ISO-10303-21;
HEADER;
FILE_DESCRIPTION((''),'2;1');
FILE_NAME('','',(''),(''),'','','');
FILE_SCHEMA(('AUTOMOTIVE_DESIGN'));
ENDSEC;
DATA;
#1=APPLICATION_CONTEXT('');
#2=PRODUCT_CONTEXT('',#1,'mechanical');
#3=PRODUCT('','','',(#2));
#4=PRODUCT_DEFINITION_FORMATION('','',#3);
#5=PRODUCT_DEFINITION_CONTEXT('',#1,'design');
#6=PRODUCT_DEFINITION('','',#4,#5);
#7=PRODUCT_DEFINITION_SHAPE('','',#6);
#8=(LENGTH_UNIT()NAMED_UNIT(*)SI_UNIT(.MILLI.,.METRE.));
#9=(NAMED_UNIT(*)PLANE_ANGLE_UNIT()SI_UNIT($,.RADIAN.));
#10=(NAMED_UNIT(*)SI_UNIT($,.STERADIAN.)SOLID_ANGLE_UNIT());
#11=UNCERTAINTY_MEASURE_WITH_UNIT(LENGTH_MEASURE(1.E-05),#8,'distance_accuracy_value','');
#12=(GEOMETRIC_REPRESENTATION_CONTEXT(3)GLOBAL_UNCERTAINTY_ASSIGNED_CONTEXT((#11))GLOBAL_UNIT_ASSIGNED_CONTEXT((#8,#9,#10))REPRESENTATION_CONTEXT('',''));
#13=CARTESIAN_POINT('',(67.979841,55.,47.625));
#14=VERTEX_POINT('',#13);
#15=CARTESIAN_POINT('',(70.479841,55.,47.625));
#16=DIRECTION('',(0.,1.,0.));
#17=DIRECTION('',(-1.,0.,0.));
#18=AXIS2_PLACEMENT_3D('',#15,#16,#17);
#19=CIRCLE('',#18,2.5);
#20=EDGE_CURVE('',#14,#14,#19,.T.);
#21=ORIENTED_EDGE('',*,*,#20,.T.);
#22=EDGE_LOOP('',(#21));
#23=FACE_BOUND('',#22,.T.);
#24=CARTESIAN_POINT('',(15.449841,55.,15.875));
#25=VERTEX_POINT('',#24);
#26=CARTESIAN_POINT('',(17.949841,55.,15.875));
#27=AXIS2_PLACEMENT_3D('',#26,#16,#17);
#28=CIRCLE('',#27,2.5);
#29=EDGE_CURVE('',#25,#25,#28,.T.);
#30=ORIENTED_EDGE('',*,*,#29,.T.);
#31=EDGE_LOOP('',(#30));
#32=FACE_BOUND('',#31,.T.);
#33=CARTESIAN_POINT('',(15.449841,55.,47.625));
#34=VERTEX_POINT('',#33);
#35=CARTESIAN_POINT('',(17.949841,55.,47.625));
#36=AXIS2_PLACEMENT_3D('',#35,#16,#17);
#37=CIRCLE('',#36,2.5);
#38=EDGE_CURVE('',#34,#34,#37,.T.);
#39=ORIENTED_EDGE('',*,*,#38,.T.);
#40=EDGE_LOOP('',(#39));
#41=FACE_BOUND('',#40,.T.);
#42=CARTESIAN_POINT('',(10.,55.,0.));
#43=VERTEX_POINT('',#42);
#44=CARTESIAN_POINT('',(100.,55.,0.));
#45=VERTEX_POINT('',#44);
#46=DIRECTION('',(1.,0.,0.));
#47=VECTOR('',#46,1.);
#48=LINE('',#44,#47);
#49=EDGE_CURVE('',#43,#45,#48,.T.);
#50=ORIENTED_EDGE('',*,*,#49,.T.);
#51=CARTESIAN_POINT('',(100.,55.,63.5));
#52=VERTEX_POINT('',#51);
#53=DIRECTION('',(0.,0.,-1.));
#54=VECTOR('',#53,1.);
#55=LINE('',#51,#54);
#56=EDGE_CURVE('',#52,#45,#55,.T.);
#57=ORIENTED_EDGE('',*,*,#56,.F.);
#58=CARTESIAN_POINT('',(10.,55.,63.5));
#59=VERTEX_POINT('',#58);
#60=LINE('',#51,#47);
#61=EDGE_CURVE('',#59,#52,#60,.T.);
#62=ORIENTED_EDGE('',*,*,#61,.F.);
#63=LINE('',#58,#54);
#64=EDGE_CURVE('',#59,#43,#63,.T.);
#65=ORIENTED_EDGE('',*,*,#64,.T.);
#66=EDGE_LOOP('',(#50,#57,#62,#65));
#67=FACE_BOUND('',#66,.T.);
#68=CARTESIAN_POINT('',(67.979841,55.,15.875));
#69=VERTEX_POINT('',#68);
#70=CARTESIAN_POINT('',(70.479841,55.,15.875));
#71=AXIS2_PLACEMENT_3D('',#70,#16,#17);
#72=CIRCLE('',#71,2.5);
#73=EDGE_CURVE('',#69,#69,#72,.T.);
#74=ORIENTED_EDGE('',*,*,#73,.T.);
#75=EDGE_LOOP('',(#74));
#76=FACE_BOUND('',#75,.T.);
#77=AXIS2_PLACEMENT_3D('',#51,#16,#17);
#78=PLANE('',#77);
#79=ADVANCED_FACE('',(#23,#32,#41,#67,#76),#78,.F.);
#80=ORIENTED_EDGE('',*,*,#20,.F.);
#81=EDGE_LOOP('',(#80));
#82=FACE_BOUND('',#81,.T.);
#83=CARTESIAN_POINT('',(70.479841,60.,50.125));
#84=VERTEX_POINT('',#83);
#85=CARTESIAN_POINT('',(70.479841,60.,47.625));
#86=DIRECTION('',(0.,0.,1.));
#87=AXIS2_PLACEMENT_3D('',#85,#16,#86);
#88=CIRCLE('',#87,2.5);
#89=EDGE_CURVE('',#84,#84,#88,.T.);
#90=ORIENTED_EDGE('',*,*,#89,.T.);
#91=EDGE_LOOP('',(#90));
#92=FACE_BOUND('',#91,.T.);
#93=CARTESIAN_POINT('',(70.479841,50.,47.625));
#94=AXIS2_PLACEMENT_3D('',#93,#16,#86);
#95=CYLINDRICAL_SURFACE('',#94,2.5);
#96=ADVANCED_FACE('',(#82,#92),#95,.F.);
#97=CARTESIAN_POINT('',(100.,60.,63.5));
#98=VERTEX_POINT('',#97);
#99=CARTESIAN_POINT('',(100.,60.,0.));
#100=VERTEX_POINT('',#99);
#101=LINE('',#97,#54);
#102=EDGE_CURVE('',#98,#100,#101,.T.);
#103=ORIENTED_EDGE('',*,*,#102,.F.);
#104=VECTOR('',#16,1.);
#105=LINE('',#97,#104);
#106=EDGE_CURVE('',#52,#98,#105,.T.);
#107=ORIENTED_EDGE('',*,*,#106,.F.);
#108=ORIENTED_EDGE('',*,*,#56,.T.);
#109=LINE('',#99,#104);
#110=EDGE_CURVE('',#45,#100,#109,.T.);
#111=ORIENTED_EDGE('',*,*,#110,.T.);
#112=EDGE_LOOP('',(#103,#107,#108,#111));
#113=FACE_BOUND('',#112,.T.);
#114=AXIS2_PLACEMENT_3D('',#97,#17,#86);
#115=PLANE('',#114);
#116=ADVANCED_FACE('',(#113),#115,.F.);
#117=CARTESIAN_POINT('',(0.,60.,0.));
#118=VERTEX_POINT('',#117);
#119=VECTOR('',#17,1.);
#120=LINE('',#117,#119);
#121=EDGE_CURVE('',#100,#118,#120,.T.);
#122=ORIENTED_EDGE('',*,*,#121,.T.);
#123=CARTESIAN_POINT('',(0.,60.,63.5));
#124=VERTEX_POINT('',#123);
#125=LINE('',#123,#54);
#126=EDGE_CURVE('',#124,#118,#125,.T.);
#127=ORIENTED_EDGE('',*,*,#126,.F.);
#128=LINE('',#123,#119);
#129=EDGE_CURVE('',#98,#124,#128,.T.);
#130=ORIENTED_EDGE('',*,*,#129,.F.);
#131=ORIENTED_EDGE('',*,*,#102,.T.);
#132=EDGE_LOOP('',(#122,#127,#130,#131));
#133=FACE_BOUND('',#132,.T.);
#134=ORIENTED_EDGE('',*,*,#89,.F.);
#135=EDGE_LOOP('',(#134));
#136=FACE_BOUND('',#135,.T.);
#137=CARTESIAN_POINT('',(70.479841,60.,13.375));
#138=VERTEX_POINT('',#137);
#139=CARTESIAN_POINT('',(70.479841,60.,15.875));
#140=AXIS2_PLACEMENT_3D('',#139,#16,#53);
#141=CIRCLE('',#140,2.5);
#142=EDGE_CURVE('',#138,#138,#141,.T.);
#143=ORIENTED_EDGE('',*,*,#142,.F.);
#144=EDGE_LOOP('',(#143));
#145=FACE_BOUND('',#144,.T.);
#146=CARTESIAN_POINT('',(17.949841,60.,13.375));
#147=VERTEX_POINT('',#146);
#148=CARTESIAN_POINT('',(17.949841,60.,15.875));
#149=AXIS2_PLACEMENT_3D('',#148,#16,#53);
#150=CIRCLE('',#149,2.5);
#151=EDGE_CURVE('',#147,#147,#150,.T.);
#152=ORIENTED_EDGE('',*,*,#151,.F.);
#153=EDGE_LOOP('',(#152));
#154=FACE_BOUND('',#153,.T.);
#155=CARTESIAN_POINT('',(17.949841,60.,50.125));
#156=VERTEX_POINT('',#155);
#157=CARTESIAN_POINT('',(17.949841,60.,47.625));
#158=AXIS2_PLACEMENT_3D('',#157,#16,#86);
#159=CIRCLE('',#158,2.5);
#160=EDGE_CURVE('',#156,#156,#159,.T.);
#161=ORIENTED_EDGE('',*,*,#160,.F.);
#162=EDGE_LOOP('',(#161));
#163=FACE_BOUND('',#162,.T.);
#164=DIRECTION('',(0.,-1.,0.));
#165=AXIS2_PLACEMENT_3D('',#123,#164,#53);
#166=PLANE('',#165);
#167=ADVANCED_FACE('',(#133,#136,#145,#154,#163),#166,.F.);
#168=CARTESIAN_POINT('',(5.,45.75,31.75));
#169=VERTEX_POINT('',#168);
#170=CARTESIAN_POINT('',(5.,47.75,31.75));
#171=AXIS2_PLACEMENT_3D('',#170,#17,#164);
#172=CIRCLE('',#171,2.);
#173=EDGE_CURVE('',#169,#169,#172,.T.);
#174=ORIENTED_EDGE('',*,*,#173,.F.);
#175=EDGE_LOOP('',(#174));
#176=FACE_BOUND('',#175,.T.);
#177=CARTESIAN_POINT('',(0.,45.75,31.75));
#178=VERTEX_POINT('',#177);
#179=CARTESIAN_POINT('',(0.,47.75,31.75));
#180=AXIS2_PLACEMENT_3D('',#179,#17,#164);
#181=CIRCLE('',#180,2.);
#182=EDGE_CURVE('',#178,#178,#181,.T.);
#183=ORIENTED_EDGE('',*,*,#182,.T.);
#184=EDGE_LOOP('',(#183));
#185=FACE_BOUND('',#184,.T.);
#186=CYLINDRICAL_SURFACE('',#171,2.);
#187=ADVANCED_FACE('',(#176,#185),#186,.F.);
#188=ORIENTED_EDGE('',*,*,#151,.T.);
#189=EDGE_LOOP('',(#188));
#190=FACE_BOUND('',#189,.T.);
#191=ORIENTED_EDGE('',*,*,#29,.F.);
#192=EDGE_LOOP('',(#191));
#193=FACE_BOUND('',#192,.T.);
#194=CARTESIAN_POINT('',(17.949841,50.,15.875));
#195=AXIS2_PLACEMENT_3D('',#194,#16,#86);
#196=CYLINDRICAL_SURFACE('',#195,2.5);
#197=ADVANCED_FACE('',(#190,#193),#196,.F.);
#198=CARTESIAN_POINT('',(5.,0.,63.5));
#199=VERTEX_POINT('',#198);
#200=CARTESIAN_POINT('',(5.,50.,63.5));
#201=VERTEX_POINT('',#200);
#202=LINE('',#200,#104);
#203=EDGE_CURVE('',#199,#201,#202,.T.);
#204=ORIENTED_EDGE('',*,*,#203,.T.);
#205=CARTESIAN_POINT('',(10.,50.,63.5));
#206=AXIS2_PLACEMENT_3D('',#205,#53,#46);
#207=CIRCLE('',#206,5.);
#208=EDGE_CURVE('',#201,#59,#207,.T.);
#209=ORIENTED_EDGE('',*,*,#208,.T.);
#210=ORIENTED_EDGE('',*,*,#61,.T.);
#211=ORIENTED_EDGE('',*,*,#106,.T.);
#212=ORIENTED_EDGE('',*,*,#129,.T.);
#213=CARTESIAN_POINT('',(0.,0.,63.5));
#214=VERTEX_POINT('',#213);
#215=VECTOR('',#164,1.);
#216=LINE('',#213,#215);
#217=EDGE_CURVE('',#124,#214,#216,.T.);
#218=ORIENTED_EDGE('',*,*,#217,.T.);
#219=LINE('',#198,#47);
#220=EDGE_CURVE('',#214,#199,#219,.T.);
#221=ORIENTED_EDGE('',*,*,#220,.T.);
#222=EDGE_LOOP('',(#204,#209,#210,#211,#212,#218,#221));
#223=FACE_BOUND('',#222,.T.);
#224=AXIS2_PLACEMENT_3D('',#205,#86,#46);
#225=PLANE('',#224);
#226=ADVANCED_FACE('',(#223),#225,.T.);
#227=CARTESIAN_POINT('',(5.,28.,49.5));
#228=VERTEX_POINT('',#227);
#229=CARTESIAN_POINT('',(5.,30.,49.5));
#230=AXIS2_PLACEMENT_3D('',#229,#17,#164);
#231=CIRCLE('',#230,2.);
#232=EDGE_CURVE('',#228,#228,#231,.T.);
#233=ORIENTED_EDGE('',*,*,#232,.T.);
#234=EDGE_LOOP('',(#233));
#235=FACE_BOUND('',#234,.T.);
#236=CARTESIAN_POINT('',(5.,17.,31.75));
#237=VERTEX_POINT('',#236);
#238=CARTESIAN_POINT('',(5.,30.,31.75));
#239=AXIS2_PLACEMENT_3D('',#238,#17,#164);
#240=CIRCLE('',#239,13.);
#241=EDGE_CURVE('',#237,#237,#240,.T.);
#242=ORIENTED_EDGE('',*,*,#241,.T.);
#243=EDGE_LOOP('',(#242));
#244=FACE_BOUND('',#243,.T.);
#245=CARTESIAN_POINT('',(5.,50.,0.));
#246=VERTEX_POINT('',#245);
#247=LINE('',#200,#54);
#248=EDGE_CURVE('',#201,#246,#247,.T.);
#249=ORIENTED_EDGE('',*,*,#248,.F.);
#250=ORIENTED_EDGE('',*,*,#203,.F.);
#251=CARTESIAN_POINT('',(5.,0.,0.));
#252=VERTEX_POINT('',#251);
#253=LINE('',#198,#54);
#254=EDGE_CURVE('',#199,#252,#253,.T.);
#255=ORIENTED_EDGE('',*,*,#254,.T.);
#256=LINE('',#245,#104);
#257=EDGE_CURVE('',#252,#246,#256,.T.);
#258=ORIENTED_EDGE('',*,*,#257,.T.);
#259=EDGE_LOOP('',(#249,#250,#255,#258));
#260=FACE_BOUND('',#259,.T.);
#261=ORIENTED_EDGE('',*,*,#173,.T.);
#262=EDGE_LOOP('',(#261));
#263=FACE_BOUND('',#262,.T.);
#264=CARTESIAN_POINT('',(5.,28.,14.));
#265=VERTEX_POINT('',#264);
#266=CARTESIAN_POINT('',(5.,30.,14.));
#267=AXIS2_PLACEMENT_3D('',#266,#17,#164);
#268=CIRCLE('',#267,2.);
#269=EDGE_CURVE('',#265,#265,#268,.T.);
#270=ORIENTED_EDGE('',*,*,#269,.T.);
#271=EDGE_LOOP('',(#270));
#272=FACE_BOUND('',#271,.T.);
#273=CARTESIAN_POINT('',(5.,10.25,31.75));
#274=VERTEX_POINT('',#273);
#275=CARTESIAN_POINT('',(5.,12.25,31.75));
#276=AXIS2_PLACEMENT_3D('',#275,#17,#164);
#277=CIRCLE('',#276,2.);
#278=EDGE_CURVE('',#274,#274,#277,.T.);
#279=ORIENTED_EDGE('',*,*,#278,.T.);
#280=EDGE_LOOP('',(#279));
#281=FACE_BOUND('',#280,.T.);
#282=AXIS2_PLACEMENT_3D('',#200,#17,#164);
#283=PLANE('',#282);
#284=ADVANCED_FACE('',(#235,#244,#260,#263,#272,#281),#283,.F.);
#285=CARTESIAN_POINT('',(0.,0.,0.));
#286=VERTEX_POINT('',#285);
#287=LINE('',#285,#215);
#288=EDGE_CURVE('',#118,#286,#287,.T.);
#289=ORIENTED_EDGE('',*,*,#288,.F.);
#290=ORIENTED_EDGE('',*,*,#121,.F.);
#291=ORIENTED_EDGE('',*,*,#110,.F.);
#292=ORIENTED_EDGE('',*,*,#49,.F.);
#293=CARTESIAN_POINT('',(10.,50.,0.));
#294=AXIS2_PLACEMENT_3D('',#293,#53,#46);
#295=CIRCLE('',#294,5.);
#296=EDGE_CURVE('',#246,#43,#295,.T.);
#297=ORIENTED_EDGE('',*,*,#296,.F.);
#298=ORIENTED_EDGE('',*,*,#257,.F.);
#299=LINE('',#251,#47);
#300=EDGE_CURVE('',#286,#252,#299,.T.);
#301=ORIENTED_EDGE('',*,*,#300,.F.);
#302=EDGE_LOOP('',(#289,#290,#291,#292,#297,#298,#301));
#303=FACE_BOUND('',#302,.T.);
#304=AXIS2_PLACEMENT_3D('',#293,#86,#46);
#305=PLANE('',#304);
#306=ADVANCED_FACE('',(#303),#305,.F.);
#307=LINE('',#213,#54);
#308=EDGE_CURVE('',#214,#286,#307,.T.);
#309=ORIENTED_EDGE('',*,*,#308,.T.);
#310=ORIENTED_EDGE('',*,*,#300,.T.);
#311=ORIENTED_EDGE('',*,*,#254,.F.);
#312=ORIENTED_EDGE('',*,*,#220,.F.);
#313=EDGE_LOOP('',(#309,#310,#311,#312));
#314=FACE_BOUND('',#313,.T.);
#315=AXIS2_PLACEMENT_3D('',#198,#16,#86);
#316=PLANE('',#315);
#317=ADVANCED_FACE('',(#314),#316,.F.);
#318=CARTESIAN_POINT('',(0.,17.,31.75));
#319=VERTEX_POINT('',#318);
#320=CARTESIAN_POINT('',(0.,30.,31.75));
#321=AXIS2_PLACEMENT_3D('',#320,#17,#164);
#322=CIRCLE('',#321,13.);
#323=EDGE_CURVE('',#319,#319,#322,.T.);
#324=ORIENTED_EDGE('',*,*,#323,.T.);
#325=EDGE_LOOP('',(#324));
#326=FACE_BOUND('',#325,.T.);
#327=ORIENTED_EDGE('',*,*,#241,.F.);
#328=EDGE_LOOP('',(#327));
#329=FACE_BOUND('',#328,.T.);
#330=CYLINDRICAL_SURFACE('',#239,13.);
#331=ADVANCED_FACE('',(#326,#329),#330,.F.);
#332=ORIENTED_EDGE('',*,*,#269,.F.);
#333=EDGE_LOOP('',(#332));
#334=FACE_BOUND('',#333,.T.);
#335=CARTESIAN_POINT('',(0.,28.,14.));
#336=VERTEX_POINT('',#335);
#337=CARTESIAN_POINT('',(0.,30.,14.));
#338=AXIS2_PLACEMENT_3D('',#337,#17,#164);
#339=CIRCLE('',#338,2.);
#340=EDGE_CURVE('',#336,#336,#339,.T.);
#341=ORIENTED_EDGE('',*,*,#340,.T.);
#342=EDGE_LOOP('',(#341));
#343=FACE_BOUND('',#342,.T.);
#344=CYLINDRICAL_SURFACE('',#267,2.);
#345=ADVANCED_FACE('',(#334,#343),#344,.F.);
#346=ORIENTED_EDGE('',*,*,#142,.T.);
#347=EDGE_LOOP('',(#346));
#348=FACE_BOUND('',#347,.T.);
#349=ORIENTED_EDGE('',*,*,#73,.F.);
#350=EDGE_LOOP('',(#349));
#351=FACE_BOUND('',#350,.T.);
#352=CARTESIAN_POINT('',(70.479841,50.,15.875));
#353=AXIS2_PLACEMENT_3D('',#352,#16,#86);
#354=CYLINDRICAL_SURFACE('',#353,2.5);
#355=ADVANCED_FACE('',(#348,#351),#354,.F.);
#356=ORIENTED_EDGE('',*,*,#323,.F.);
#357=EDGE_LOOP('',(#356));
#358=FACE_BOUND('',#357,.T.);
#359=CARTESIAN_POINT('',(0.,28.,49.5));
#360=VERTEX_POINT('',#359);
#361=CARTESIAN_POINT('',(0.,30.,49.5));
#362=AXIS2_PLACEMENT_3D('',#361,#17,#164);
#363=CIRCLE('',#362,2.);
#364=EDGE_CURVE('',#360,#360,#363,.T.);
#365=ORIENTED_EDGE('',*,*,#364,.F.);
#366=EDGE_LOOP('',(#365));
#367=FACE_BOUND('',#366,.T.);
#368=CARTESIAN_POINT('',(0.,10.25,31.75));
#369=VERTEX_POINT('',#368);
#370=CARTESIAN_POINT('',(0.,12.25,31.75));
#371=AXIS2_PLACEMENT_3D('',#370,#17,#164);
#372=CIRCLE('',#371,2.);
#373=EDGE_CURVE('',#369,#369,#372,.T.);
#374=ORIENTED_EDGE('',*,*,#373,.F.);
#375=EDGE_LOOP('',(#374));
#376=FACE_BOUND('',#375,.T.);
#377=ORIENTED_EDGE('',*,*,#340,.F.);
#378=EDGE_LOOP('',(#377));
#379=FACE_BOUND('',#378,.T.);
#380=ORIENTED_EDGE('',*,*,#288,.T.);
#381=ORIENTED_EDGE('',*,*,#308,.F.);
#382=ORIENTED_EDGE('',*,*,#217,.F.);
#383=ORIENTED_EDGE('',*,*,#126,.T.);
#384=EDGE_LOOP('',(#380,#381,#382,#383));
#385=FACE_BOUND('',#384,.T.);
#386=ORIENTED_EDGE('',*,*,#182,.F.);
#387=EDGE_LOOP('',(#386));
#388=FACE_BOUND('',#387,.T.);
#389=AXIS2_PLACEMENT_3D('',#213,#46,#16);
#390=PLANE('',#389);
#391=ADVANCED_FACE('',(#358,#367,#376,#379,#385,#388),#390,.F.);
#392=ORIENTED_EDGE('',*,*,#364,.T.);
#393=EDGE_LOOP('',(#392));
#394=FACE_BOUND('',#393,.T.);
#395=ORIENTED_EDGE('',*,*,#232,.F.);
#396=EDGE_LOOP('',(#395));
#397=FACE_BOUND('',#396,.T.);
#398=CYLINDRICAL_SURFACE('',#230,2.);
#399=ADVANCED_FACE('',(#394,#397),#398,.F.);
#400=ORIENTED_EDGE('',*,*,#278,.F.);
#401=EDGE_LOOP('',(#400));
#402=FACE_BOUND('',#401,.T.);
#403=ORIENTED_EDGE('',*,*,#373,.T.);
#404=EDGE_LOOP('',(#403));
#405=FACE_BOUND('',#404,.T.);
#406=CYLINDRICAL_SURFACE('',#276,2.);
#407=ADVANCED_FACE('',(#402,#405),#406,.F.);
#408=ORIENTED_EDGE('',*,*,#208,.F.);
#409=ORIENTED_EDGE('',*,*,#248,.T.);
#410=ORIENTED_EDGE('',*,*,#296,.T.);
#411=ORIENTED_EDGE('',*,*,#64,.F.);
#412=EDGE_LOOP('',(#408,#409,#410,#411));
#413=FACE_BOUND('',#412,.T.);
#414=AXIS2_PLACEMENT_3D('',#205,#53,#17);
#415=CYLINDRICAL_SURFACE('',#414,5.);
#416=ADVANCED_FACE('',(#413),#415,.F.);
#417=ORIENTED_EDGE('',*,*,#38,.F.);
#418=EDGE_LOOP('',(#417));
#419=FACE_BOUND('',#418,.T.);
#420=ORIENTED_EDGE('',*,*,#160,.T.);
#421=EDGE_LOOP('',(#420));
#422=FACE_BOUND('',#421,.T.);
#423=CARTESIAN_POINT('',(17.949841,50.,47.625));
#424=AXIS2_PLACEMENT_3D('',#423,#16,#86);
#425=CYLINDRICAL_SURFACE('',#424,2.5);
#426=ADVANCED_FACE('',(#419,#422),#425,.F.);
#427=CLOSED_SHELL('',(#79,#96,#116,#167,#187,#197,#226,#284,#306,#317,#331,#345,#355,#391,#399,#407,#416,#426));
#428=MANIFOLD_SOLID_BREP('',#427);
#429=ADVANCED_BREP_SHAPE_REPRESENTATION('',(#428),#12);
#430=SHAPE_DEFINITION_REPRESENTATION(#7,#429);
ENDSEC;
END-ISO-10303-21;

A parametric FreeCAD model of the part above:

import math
import FreeCAD as App
import Part
import Sketcher

doc = App.newDocument("Part")
body = doc.addObject("PartDesign::Body", "Body")

sketch1 = body.newObject("Sketcher::SketchObject", "Sketch")
sketch1.AttachmentSupport = (doc.getObject("XY_Plane"), [""])
sketch1.MapMode = "FlatFace"
sketch1.addGeometry(Part.LineSegment(App.Vector(0, 60, 0), App.Vector(0, 0, 0)), False)
sketch1.addGeometry(Part.LineSegment(App.Vector(0, 0, 0), App.Vector(5, 0, 0)), False)
sketch1.addGeometry(Part.LineSegment(App.Vector(5, 0, 0), App.Vector(5, 50, 0)), False)
sketch1.addGeometry(Part.ArcOfCircle(Part.Circle(App.Vector(10, 50, 0), App.Vector(0, 0, 1), 5), math.radians(90), math.radians(180)), False)
sketch1.addGeometry(Part.LineSegment(App.Vector(10, 55, 0), App.Vector(100, 55, 0)), False)
sketch1.addGeometry(Part.LineSegment(App.Vector(100, 55, 0), App.Vector(100, 60, 0)), False)
sketch1.addGeometry(Part.LineSegment(App.Vector(100, 60, 0), App.Vector(0, 60, 0)), False)
sketch1.addConstraint(Sketcher.Constraint("Coincident", 0, 2, 1, 1))
sketch1.addConstraint(Sketcher.Constraint("Coincident", 1, 2, 2, 1))
sketch1.addConstraint(Sketcher.Constraint("Tangent", 2, 2, 3, 2))
sketch1.addConstraint(Sketcher.Constraint("Tangent", 3, 1, 4, 1))
sketch1.addConstraint(Sketcher.Constraint("Coincident", 4, 2, 5, 1))
sketch1.addConstraint(Sketcher.Constraint("Coincident", 5, 2, 6, 1))
sketch1.addConstraint(Sketcher.Constraint("Coincident", 6, 2, 0, 1))
sketch1.addConstraint(Sketcher.Constraint("Vertical", 0))
sketch1.addConstraint(Sketcher.Constraint("Horizontal", 1))
sketch1.addConstraint(Sketcher.Constraint("Vertical", 2))
sketch1.addConstraint(Sketcher.Constraint("Horizontal", 4))
sketch1.addConstraint(Sketcher.Constraint("Vertical", 5))
sketch1.addConstraint(Sketcher.Constraint("Horizontal", 6))
sketch1.addConstraint(Sketcher.Constraint("Coincident", 0, 2, -1, 1))
sketch1.addConstraint(Sketcher.Constraint("Equal", 1, 5))
sketch1.addConstraint(Sketcher.Constraint("Radius", 3, 5.0))
sketch1.addConstraint(Sketcher.Constraint("DistanceX", 1, 1, 1, 2, 5.0))
sketch1.addConstraint(Sketcher.Constraint("DistanceX", 4, 1, 4, 2, 90.0))
sketch1.addConstraint(Sketcher.Constraint("DistanceY", 0, 2, 0, 1, 60.0))
pad1 = body.newObject("PartDesign::Pad", "Pad")
pad1.Profile = sketch1
pad1.Length = 63.5

sketch2 = body.newObject("Sketcher::SketchObject", "Sketch001")
sketch2.AttachmentSupport = (doc.getObject("YZ_Plane"), [""])
sketch2.MapMode = "FlatFace"
sketch2.addGeometry(Part.Circle(App.Vector(30, 31.8, 0), App.Vector(0, 0, 1), 13), False)
sketch2.addGeometry(Part.Circle(App.Vector(30, 49.5, 0), App.Vector(0, 0, 1), 2), False)
sketch2.addGeometry(Part.Circle(App.Vector(12.2, 31.8, 0), App.Vector(0, 0, 1), 2), False)
sketch2.addGeometry(Part.Circle(App.Vector(30, 14, 0), App.Vector(0, 0, 1), 2), False)
sketch2.addGeometry(Part.Circle(App.Vector(47.8, 31.8, 0), App.Vector(0, 0, 1), 2), False)
sketch2.addConstraint(Sketcher.Constraint("Equal", 1, 2))
sketch2.addConstraint(Sketcher.Constraint("Equal", 2, 3))
sketch2.addConstraint(Sketcher.Constraint("Equal", 3, 4))
sketch2.addConstraint(Sketcher.Constraint("Horizontal", 0, 3, 2, 3))
sketch2.addConstraint(Sketcher.Constraint("Horizontal", 2, 3, 4, 3))
sketch2.addConstraint(Sketcher.Constraint("Vertical", 0, 3, 1, 3))
sketch2.addConstraint(Sketcher.Constraint("Vertical", 1, 3, 3, 3))
sketch2.addConstraint(Sketcher.Constraint("Diameter", 0, 26.0))
sketch2.addConstraint(Sketcher.Constraint("Diameter", 1, 4.0))
sketch2.addConstraint(Sketcher.Constraint("DistanceX", -1, 1, 0, 3, 30.0))
sketch2.addConstraint(Sketcher.Constraint("DistanceY", -1, 1, 3, 3, 14.0))
sketch2.addConstraint(Sketcher.Constraint("DistanceY", -1, 1, 1, 3, 49.5))
sketch2.addConstraint(Sketcher.Constraint("DistanceX", 2, 3, 4, 3, 35.5))
sketch2.addConstraint(Sketcher.Constraint("DistanceY", -1, 1, 0, 3, 31.75))
sketch2.addConstraint(Sketcher.Constraint("DistanceX", -1, 1, 2, 3, 12.25))
pocket1 = body.newObject("PartDesign::Pocket", "Pocket")
pocket1.Profile = sketch2
pocket1.Length = 5
pocket1.Reversed = True

sketch3 = body.newObject("Sketcher::SketchObject", "Sketch002")
sketch3.AttachmentSupport = (doc.getObject("XZ_Plane"), [""])
sketch3.MapMode = "FlatFace"
sketch3.AttachmentOffset = App.Placement(App.Vector(0, 0, -60), App.Rotation())
sketch3.addGeometry(Part.Circle(App.Vector(70.5, 47.6, 0), App.Vector(0, 0, 1), 2.5), False)
sketch3.addGeometry(Part.Circle(App.Vector(17.9, 47.6, 0), App.Vector(0, 0, 1), 2.5), False)
sketch3.addGeometry(Part.Circle(App.Vector(17.9, 15.9, 0), App.Vector(0, 0, 1), 2.5), False)
sketch3.addGeometry(Part.Circle(App.Vector(70.5, 15.9, 0), App.Vector(0, 0, 1), 2.5), False)
sketch3.addConstraint(Sketcher.Constraint("Equal", 0, 1))
sketch3.addConstraint(Sketcher.Constraint("Equal", 1, 2))
sketch3.addConstraint(Sketcher.Constraint("Equal", 2, 3))
sketch3.addConstraint(Sketcher.Constraint("Horizontal", 0, 3, 1, 3))
sketch3.addConstraint(Sketcher.Constraint("Horizontal", 2, 3, 3, 3))
sketch3.addConstraint(Sketcher.Constraint("Vertical", 1, 3, 2, 3))
sketch3.addConstraint(Sketcher.Constraint("Vertical", 0, 3, 3, 3))
sketch3.addConstraint(Sketcher.Constraint("Diameter", 0, 5.0))
sketch3.addConstraint(Sketcher.Constraint("DistanceX", 1, 3, 0, 3, 52.53))
sketch3.addConstraint(Sketcher.Constraint("DistanceY", 2, 3, 1, 3, 31.75))
sketch3.addConstraint(Sketcher.Constraint("DistanceY", -1, 1, 0, 3, 47.625))
sketch3.addConstraint(Sketcher.Constraint("DistanceX", -1, 1, 0, 3, 70.479841))
pocket2 = body.newObject("PartDesign::Pocket", "Pocket001")
pocket2.Profile = sketch3
pocket2.Length = 10
pocket2.Reversed = True

doc.recompute()
